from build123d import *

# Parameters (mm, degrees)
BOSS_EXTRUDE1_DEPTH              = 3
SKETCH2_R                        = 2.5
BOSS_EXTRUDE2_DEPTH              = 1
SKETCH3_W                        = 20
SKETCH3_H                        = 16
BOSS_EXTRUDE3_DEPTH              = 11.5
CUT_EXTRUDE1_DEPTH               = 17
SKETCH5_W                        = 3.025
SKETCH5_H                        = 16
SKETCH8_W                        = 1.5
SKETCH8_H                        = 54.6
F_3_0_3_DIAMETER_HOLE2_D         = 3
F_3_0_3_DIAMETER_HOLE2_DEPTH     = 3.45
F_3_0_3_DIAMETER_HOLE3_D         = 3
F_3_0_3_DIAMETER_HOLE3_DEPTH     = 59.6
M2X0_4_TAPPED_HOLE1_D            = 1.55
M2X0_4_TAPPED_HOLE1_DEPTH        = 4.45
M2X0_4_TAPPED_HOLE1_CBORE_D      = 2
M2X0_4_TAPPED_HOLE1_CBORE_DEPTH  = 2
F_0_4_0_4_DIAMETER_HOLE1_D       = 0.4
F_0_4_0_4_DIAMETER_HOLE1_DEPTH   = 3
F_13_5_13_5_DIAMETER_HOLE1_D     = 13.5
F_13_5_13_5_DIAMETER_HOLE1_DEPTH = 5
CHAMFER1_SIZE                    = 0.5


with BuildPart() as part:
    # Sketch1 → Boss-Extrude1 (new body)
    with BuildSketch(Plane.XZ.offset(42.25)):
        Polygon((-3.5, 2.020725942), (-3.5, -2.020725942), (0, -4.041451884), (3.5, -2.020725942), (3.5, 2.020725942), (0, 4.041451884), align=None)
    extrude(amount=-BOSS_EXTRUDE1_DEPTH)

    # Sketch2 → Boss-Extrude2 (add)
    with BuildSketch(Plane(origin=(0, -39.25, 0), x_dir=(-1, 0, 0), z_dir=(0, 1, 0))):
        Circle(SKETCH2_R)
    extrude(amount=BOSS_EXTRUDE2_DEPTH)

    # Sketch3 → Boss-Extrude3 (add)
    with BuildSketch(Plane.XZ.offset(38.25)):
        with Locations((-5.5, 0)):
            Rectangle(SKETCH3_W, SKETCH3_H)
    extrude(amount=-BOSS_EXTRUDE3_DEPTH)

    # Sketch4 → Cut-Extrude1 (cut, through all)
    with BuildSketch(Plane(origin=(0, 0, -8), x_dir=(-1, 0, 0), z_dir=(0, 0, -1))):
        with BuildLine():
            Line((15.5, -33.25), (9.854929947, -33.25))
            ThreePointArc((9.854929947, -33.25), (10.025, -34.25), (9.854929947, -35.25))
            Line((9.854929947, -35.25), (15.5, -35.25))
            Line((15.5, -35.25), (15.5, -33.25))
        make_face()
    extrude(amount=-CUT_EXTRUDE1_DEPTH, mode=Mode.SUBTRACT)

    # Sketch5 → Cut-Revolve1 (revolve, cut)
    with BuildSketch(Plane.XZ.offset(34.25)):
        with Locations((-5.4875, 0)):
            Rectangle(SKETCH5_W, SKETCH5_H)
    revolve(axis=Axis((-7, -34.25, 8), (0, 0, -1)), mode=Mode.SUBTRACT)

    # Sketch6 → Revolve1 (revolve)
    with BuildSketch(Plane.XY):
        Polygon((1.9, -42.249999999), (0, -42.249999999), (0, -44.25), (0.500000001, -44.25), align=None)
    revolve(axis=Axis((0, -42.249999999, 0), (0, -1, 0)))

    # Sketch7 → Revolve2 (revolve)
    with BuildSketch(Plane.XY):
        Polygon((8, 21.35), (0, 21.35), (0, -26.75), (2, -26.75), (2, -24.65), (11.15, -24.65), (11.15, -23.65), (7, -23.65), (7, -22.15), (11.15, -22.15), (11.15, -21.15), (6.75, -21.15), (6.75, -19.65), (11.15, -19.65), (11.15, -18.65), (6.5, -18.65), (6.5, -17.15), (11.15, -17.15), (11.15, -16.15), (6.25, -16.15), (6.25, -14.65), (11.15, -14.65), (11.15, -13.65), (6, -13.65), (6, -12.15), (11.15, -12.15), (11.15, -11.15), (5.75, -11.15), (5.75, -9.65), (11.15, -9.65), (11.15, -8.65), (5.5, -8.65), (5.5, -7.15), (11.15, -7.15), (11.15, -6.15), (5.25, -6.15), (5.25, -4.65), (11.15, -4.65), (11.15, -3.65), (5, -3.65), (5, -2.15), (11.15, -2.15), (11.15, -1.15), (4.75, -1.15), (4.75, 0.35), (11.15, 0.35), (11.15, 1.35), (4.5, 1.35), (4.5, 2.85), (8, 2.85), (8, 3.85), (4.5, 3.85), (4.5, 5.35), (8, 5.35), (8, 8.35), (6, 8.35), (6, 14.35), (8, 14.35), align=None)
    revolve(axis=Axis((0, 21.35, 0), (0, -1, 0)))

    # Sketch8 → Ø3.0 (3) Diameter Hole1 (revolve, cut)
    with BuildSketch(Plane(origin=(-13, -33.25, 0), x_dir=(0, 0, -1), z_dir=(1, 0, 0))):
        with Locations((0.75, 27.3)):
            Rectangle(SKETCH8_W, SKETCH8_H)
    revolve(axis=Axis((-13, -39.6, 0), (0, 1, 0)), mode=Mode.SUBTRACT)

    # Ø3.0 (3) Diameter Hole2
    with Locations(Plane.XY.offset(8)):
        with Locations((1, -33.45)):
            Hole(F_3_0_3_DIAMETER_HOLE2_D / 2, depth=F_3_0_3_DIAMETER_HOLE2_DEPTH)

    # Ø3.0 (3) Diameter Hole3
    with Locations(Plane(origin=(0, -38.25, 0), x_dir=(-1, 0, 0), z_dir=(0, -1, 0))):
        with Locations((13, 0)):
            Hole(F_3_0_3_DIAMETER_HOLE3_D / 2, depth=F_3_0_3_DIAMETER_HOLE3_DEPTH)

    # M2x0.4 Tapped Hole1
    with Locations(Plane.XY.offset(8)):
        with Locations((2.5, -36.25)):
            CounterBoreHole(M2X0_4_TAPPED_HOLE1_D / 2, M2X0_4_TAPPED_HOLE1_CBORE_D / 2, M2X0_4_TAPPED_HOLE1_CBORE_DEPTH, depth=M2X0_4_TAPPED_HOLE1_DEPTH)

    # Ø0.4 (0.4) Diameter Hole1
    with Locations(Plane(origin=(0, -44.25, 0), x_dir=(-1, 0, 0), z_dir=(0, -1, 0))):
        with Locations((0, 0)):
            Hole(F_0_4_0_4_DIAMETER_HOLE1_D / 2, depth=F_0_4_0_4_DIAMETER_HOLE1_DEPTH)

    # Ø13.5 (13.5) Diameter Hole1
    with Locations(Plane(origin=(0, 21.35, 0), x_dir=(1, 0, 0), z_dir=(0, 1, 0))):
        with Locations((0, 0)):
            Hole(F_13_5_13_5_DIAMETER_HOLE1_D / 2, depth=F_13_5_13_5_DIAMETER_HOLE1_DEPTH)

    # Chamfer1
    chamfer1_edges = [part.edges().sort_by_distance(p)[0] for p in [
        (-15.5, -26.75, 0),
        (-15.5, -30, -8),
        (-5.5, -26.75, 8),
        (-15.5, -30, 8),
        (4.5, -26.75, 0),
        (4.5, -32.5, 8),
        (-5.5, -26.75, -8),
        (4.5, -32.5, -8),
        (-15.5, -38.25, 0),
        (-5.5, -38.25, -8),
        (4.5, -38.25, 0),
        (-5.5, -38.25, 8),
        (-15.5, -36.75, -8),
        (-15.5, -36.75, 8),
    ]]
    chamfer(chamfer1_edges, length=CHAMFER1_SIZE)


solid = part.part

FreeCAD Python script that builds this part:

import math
import FreeCAD as App
import Part
import Sketcher
from FreeCAD import Vector
Q = App.Units.Quantity


def edges_at(feature, points):
    """Names of the edges that pass closest to the given points."""
    edges = feature.Shape.Edges
    near = lambda p: min(range(len(edges)), key=lambda i: edges[i].distToShape(Part.Vertex(*p))[0])
    return sorted({f"Edge{near(p) + 1}" for p in points})


def add_polygon(sketch, points):
    """Adds a closed chain of lines whose ends are joined by coincident constraints."""
    first, n = sketch.GeometryCount, len(points)
    for a, b in zip(points, points[1:] + points[:1]):
        sketch.addGeometry(Part.LineSegment(App.Vector(*a, 0), App.Vector(*b, 0)), False)
    for i in range(n):
        sketch.addConstraint(Sketcher.Constraint("Coincident", first + i, 2, first + (i + 1) % n, 1))

doc = App.newDocument("Part")
body = doc.addObject("PartDesign::Body", "Body")

sketch1 = body.newObject("Sketcher::SketchObject", "Sketch")
sketch1.AttachmentSupport = (doc.getObject("XZ_Plane"), [""])
sketch1.MapMode = "FlatFace"
sketch1.AttachmentOffset = App.Placement(Vector(0, 0, 42.25), App.Rotation())
add_polygon(sketch1, [(-3.5, 2.020726), (-3.5, -2.020726), (0, -4.041452), (3.5, -2.020726), (3.5, 2.020726), (0, 4.041452)])
sketch1.addConstraint([
    Sketcher.Constraint("Vertical", 0),
    Sketcher.Constraint("Vertical", 3),
    Sketcher.Constraint("Symmetric", 0, 2, 3, 2, -1, 1),
    Sketcher.Constraint("Symmetric", 1, 2, 4, 2, -1, 1),
    Sketcher.Constraint("PointOnObject", 1, 2, -2),
    Sketcher.Constraint("Parallel", 2, 5),
    Sketcher.Constraint("Horizontal", 0, 2, 2, 2),
    Sketcher.Constraint("Angle", 1, Q("-30 deg")),
    Sketcher.Constraint("DistanceX", 0, 2, 2, 2, Q("7 mm")),
    Sketcher.Constraint("DistanceY", 0, 2, 0, 1, Q("4.041452 mm")),
])
pad1 = body.newObject("PartDesign::Pad", "Pad")
pad1.Profile = sketch1
pad1.Length = 3
pad1.Reversed = True

sketch2 = body.newObject("Sketcher::SketchObject", "Sketch001")
sketch2.AttachmentSupport = (doc.getObject("XZ_Plane"), [""])
sketch2.MapMode = "FlatFace"
sketch2.AttachmentOffset = App.Placement(Vector(0, 0, 39.25), App.Rotation())
sketch2.addGeometry(Part.Circle(Vector(0, 0, 0), Vector(0, 0, 1), 2.5), False)
sketch2.addConstraint([
    Sketcher.Constraint("Coincident", 0, 3, -1, 1),
    Sketcher.Constraint("Diameter", 0, Q("5 mm")),
])
pad2 = body.newObject("PartDesign::Pad", "Pad001")
pad2.Profile = sketch2
pad2.Length = 1
pad2.Reversed = True

sketch3 = body.newObject("Sketcher::SketchObject", "Sketch002")
sketch3.AttachmentSupport = (doc.getObject("XZ_Plane"), [""])
sketch3.MapMode = "FlatFace"
sketch3.AttachmentOffset = App.Placement(Vector(0, 0, 38.25), App.Rotation())
add_polygon(sketch3, [(-15.5, 8), (-15.5, -8), (4.5, -8), (4.5, 8)])
sketch3.addConstraint([
    Sketcher.Constraint("Vertical", 0),
    Sketcher.Constraint("Horizontal", 1),
    Sketcher.Constraint("Vertical", 2),
    Sketcher.Constraint("Horizontal", 3),
    Sketcher.Constraint("DistanceX", 1, 1, 1, 2, Q("20 mm")),
    Sketcher.Constraint("DistanceY", 0, 2, 0, 1, Q("16 mm")),
    Sketcher.Constraint("DistanceY", 0, 2, -1, 1, Q("8 mm")),
    Sketcher.Constraint("DistanceX", 0, 2, -1, 1, Q("15.5 mm")),
])
pad3 = body.newObject("PartDesign::Pad", "Pad002")
pad3.Profile = sketch3
pad3.Length = 11.5
pad3.Reversed = True

sketch4 = body.newObject("Sketcher::SketchObject", "Sketch003")
sketch4.AttachmentSupport = (doc.getObject("XY_Plane"), [""])
sketch4.MapMode = "FlatFace"
sketch4.AttachmentOffset = App.Placement(Vector(0, 0, -8), App.Rotation())
sketch4.addGeometry([
    Part.LineSegment(Vector(-15.5, -33.25, 0), Vector(-9.85493, -33.25, 0)),
    Part.ArcOfCircle(Part.Circle(Vector(-7, -34.25, 0), Vector(0, 0, 1), 3.025), math.radians(160.696107), math.radians(199.303893)),
    Part.LineSegment(Vector(-9.85493, -35.25, 0), Vector(-15.5, -35.25, 0)),
    Part.LineSegment(Vector(-15.5, -35.25, 0), Vector(-15.5, -33.25, 0)),
], False)
sketch4.addConstraint([
    Sketcher.Constraint("Coincident", 0, 2, 1, 1),
    Sketcher.Constraint("Coincident", 1, 2, 2, 1),
    Sketcher.Constraint("Coincident", 2, 2, 3, 1),
    Sketcher.Constraint("Coincident", 3, 2, 0, 1),
    Sketcher.Constraint("Horizontal", 0),
    Sketcher.Constraint("Horizontal", 2),
    Sketcher.Constraint("Vertical", 3),
    Sketcher.Constraint("Vertical", 0, 2, 1, 2),
    Sketcher.Constraint("DistanceY", 3, 1, 3, 2, Q("2 mm")),
    Sketcher.Constraint("DistanceX", 1, 3, -1, 1, Q("7 mm")),
    Sketcher.Constraint("Radius", 1, Q("3.025 mm")),
    Sketcher.Constraint("DistanceX", 2, 2, -1, 1, Q("15.5 mm")),
    Sketcher.Constraint("DistanceY", 1, 3, -1, 1, Q("34.25 mm")),
])
pocket1 = body.newObject("PartDesign::Pocket", "Pocket")
pocket1.Profile = sketch4
pocket1.Type = "ThroughAll"
pocket1.Reversed = True

sketch5 = body.newObject("Sketcher::SketchObject", "Sketch004")
sketch5.AttachmentSupport = (doc.getObject("XZ_Plane"), [""])
sketch5.MapMode = "FlatFace"
sketch5.AttachmentOffset = App.Placement(Vector(0, 0, 34.25), App.Rotation())
add_polygon(sketch5, [(-7, 8), (-7, -8), (-3.975, -8), (-3.975, 8)])
sketch5.addGeometry(Part.LineSegment(Vector(-7, 8, 0), Vector(-7, -8, 0)), True)
sketch5.addConstraint([
    Sketcher.Constraint("Vertical", 0),
    Sketcher.Constraint("Horizontal", 1),
    Sketcher.Constraint("Vertical", 2),
    Sketcher.Constraint("Horizontal", 3),
    Sketcher.Constraint("Vertical", 4),
    Sketcher.Constraint("Coincident", 4, 1, 3, 2),
    Sketcher.Constraint("Horizontal", 1, 2, 4, 2),
    Sketcher.Constraint("DistanceY", 0, 2, 0, 1, Q("16 mm")),
    Sketcher.Constraint("DistanceX", 0, 2, -1, 1, Q("7 mm")),
    Sketcher.Constraint("DistanceY", 0, 2, -1, 1, Q("8 mm")),
    Sketcher.Constraint("DistanceX", 1, 1, 1, 2, Q("3.025 mm")),
])
groove = body.newObject("PartDesign::Groove", "Groove")
groove.Profile = sketch5
groove.ReferenceAxis = (sketch5, ["Axis0"])
groove.Angle = 360

sketch6 = body.newObject("Sketcher::SketchObject", "Sketch005")
sketch6.AttachmentSupport = (doc.getObject("XY_Plane"), [""])
sketch6.MapMode = "FlatFace"
add_polygon(sketch6, [(1.9, -42.25), (0, -42.25), (0, -44.25), (0.5, -44.25)])
sketch6.addConstraint([
    Sketcher.Constraint("Horizontal", 0),
    Sketcher.Constraint("Vertical", 1),
    Sketcher.Constraint("Horizontal", 2),
    Sketcher.Constraint("PointOnObject", 0, 2, -2),
    Sketcher.Constraint("DistanceY", 1, 2, 1, 1, Q("2 mm")),
    Sketcher.Constraint("DistanceX", 0, 2, 0, 1, Q("1.9 mm")),
    Sketcher.Constraint("DistanceX", 2, 1, 2, 2, Q("0.5 mm")),
    Sketcher.Constraint("DistanceY", 0, 2, -1, 1, Q("42.25 mm")),
])
revolution = body.newObject("PartDesign::Revolution", "Revolution")
revolution.Profile = sketch6
revolution.ReferenceAxis = (sketch6, ["V_Axis"])
revolution.Angle = 360

sketch7 = body.newObject("Sketcher::SketchObject", "Sketch006")
sketch7.AttachmentSupport = (doc.getObject("XY_Plane"), [""])
sketch7.MapMode = "FlatFace"
add_polygon(sketch7, [(8, 21.35), (0, 21.35), (0, -26.75), (2, -26.75), (2, -24.65), (11.15, -24.65), (11.15, -23.65), (7, -23.65), (7, -22.15), (11.15, -22.15), (11.15, -21.15), (6.75, -21.15), (6.75, -19.65), (11.15, -19.65), (11.15, -18.65), (6.5, -18.65), (6.5, -17.15), (11.15, -17.15), (11.15, -16.15), (6.25, -16.15), (6.25, -14.65), (11.15, -14.65), (11.15, -13.65), (6, -13.65), (6, -12.15), (11.15, -12.15), (11.15, -11.15), (5.75, -11.15), (5.75, -9.65), (11.15, -9.65), (11.15, -8.65), (5.5, -8.65), (5.5, -7.15), (11.15, -7.15), (11.15, -6.15), (5.25, -6.15), (5.25, -4.65), (11.15, -4.65), (11.15, -3.65), (5, -3.65), (5, -2.15), (11.15, -2.15), (11.15, -1.15), (4.75, -1.15), (4.75, 0.35), (11.15, 0.35), (11.15, 1.35), (4.5, 1.35), (4.5, 2.85), (8, 2.85), (8, 3.85), (4.5, 3.85), (4.5, 5.35), (8, 5.35), (8, 8.35), (6, 8.35), (6, 14.35), (8, 14.35)])
sketch7.addConstraint([
    Sketcher.Constraint("Horizontal", 0),
    Sketcher.Constraint("Vertical", 1),
    Sketcher.Constraint("Horizontal", 2),
    Sketcher.Constraint("Vertical", 3),
    Sketcher.Constraint("Horizontal", 4),
    Sketcher.Constraint("Vertical", 5),
    Sketcher.Constraint("Horizontal", 6),
    Sketcher.Constraint("Vertical", 7),
    Sketcher.Constraint("Horizontal", 8),
    Sketcher.Constraint("Vertical", 9),
    Sketcher.Constraint("Horizontal", 10),
    Sketcher.Constraint("Vertical", 11),
    Sketcher.Constraint("Horizontal", 12),
    Sketcher.Constraint("Vertical", 13),
    Sketcher.Constraint("Horizontal", 14),
    Sketcher.Constraint("Vertical", 15),
    Sketcher.Constraint("Horizontal", 16),
    Sketcher.Constraint("Vertical", 17),
    Sketcher.Constraint("Horizontal", 18),
    Sketcher.Constraint("Vertical", 19),
    Sketcher.Constraint("Horizontal", 20),
    Sketcher.Constraint("Vertical", 21),
    Sketcher.Constraint("Horizontal", 22),
    Sketcher.Constraint("Vertical", 23),
    Sketcher.Constraint("Horizontal", 24),
    Sketcher.Constraint("Vertical", 25),
    Sketcher.Constraint("Horizontal", 26),
    Sketcher.Constraint("Vertical", 27),
    Sketcher.Constraint("Horizontal", 28),
    Sketcher.Constraint("Vertical", 29),
    Sketcher.Constraint("Horizontal", 30),
    Sketcher.Constraint("Vertical", 31),
    Sketcher.Constraint("Horizontal", 32),
    Sketcher.Constraint("Vertical", 33),
    Sketcher.Constraint("Horizontal", 34),
    Sketcher.Constraint("Vertical", 35),
    Sketcher.Constraint("Horizontal", 36),
    Sketcher.Constraint("Vertical", 37),
    Sketcher.Constraint("Horizontal", 38),
    Sketcher.Constraint("Vertical", 39),
    Sketcher.Constraint("Horizontal", 40),
    Sketcher.Constraint("Vertical", 41),
    Sketcher.Constraint("Horizontal", 42),
    Sketcher.Constraint("Vertical", 43),
    Sketcher.Constraint("Horizontal", 44),
    Sketcher.Constraint("Vertical", 45),
    Sketcher.Constraint("Horizontal", 46),
    Sketcher.Constraint("Vertical", 47),
    Sketcher.Constraint("Horizontal", 48),
    Sketcher.Constraint("Vertical", 49),
    Sketcher.Constraint("Horizontal", 50),
    Sketcher.Constraint("Vertical", 51),
    Sketcher.Constraint("Horizontal", 52),
    Sketcher.Constraint("Vertical", 53),
    Sketcher.Constraint("Horizontal", 54),
    Sketcher.Constraint("Vertical", 55),
    Sketcher.Constraint("Horizontal", 56),
    Sketcher.Constraint("Vertical", 57),
    Sketcher.Constraint("PointOnObject", 0, 2, -2),
    Sketcher.Constraint("Vertical", 5, 2, 8, 2),
    Sketcher.Constraint("Vertical", 9, 2, 12, 2),
    Sketcher.Constraint("Vertical", 13, 2, 16, 2),
    Sketcher.Constraint("Vertical", 17, 2, 20, 2),
    Sketcher.Constraint("Vertical", 21, 2, 24, 2),
    Sketcher.Constraint("Vertical", 25, 2, 28, 2),
    Sketcher.Constraint("Vertical", 29, 2, 32, 2),
    Sketcher.Constraint("Vertical", 33, 2, 36, 2),
    Sketcher.Constraint("Vertical", 37, 2, 40, 2),
    Sketcher.Constraint("Vertical", 41, 2, 44, 2),
    Sketcher.Constraint("Vertical", 47, 2, 50, 2),
    Sketcher.Constraint("Vertical", 49, 2, 52, 2),
    Sketcher.Constraint("Vertical", 23, 2, 54, 2),
    Sketcher.Constraint("Vertical", 53, 2, 56, 2),
    Sketcher.Constraint("Equal", 2, 54),
    Sketcher.Constraint("Equal", 5, 9),
    Sketcher.Constraint("Equal", 7, 11),
    Sketcher.Constraint("Equal", 9, 13),
    Sketcher.Constraint("Equal", 11, 15),
    Sketcher.Constraint("Equal", 13, 17),
    Sketcher.Constraint("Equal", 15, 19),
    Sketcher.Constraint("Equal", 17, 21),
    Sketcher.Constraint("Equal", 19, 23),
    Sketcher.Constraint("Equal", 21, 25),
    Sketcher.Constraint("Equal", 23, 27),
    Sketcher.Constraint("Equal", 25, 29),
    Sketcher.Constraint("Equal", 27, 31),
    Sketcher.Constraint("Equal", 29, 33),
    Sketcher.Constraint("Equal", 31, 35),
    Sketcher.Constraint("Equal", 33, 37),
    Sketcher.Constraint("Equal", 35, 39),
    Sketcher.Constraint("Equal", 37, 41),
    Sketcher.Constraint("Equal", 39, 43),
    Sketcher.Constraint("Equal", 41, 45),
    Sketcher.Constraint("Equal", 43, 47),
    Sketcher.Constraint("Equal", 45, 49),
    Sketcher.Constraint("Equal", 47, 51),
    Sketcher.Constraint("DistanceX", 0, 2, 0, 1, Q("8 mm")),
    Sketcher.Constraint("DistanceX", 2, 1, 2, 2, Q("2 mm")),
    Sketcher.Constraint("DistanceY", 5, 1, 5, 2, Q("1 mm")),
    Sketcher.Constraint("DistanceY", 53, 1, 53, 2, Q("3 mm")),
    Sketcher.Constraint("DistanceY", 55, 1, 55, 2, Q("6 mm")),
    Sketcher.Constraint("DistanceY", 57, 1, 57, 2, Q("7 mm")),
    Sketcher.Constraint("DistanceX", 10, 2, 10, 1, Q("4.4 mm")),
    Sketcher.Constraint("DistanceX", 18, 2, 18, 1, Q("4.9 mm")),
    Sketcher.Constraint("DistanceX", 26, 2, 26, 1, Q("5.4 mm")),
    Sketcher.Constraint("DistanceX", 34, 2, 34, 1, Q("5.9 mm")),
    Sketcher.Constraint("DistanceX", 42, 2, 42, 1, Q("6.4 mm")),
    Sketcher.Constraint("DistanceX", 48, 1, 48, 2, Q("3.5 mm")),
    Sketcher.Constraint("DistanceY", 1, 2, 1, 1, Q("48.1 mm")),
    Sketcher.Constraint("DistanceY", 3, 1, 3, 2, Q("2.1 mm")),
    Sketcher.Constraint("DistanceX", -1, 1, 6, 2, Q("7 mm")),
    Sketcher.Constraint("DistanceX", -1, 1, 38, 2, Q("5 mm")),
    Sketcher.Constraint("DistanceX", 4, 1, 4, 2, Q("9.15 mm")),
    Sketcher.Constraint("DistanceX", 14, 2, 14, 1, Q("4.65 mm")),
    Sketcher.Constraint("DistanceX", 30, 2, 30, 1, Q("5.65 mm")),
    Sketcher.Constraint("DistanceY", -1, 1, 0, 2, Q("21.35 mm")),
])
revolution2 = body.newObject("PartDesign::Revolution", "Revolution001")
revolution2.Profile = sketch7
revolution2.ReferenceAxis = (sketch7, ["V_Axis"])
revolution2.Angle = 360

sketch8 = body.newObject("Sketcher::SketchObject", "Sketch007")
sketch8.AttachmentSupport = (doc.getObject("YZ_Plane"), [""])
sketch8.MapMode = "FlatFace"
sketch8.AttachmentOffset = App.Placement(Vector(0, 0, -13), App.Rotation())
add_polygon(sketch8, [(21.35, 0), (-33.25, 0), (-33.25, -1.5), (21.35, -1.5)])
sketch8.addConstraint([
    Sketcher.Constraint("Horizontal", 0),
    Sketcher.Constraint("Vertical", 1),
    Sketcher.Constraint("Horizontal", 2),
    Sketcher.Constraint("Vertical", 3),
    Sketcher.Constraint("PointOnObject", 0, 2, -1),
    Sketcher.Constraint("DistanceX", 0, 2, 0, 1, Q("54.6 mm")),
    Sketcher.Constraint("DistanceY", 1, 2, 1, 1, Q("1.5 mm")),
    Sketcher.Constraint("DistanceX", 0, 2, -1, 1, Q("33.25 mm")),
])
groove2 = body.newObject("PartDesign::Groove", "Groove001")
groove2.Profile = sketch8
groove2.ReferenceAxis = (sketch8, ["H_Axis"])
groove2.Angle = 360

sketch9 = body.newObject("Sketcher::SketchObject", "Sketch008")
sketch9.AttachmentSupport = (doc.getObject("XY_Plane"), [""])
sketch9.MapMode = "FlatFace"
sketch9.AttachmentOffset = App.Placement(Vector(0, 0, 8), App.Rotation())
sketch9.addGeometry(Part.Circle(Vector(1, -33.45, 0), Vector(0, 0, 1), 1.5), False)
sketch9.addConstraint([
    Sketcher.Constraint("Diameter", 0, Q("3 mm")),
    Sketcher.Constraint("DistanceX", -1, 1, 0, 3, Q("1 mm")),
    Sketcher.Constraint("DistanceY", 0, 3, -1, 1, Q("33.45 mm")),
])
doc.recompute()
hole = body.newObject("PartDesign::Hole", "Hole")
hole.Profile = sketch9
hole.ThreadType = "None"
hole.Diameter = 3
hole.DepthType = "Dimension"
hole.Depth = 3.45
hole.DrillPoint = "Flat"

sketch10 = body.newObject("Sketcher::SketchObject", "Sketch009")
sketch10.AttachmentSupport = (doc.getObject("XZ_Plane"), [""])
sketch10.MapMode = "FlatFace"
sketch10.AttachmentOffset = App.Placement(Vector(0, 0, 38.25), App.Rotation())
sketch10.addGeometry(Part.Circle(Vector(-13, 0, 0), Vector(0, 0, 1), 1.5), False)
sketch10.addConstraint([
    Sketcher.Constraint("PointOnObject", 0, 3, -1),
    Sketcher.Constraint("Diameter", 0, Q("3 mm")),
    Sketcher.Constraint("DistanceX", 0, 3, -1, 1, Q("13 mm")),
])
doc.recompute()
hole2 = body.newObject("PartDesign::Hole", "Hole001")
hole2.Profile = sketch10
hole2.ThreadType = "None"
hole2.Diameter = 3
hole2.DepthType = "Dimension"
hole2.Depth = 59.6
hole2.DrillPoint = "Flat"

sketch11 = body.newObject("Sketcher::SketchObject", "Sketch010")
sketch11.AttachmentSupport = (doc.getObject("XY_Plane"), [""])
sketch11.MapMode = "FlatFace"
sketch11.AttachmentOffset = App.Placement(Vector(0, 0, 8), App.Rotation())
sketch11.addGeometry(Part.Circle(Vector(2.5, -36.25, 0), Vector(0, 0, 1), 0.775), False)
sketch11.addConstraint([
    Sketcher.Constraint("Diameter", 0, Q("1.55 mm")),
    Sketcher.Constraint("DistanceX", -1, 1, 0, 3, Q("2.5 mm")),
    Sketcher.Constraint("DistanceY", 0, 3, -1, 1, Q("36.25 mm")),
])
doc.recompute()
hole3 = body.newObject("PartDesign::Hole", "Hole002")
hole3.Profile = sketch11
hole3.ThreadType = "None"
hole3.Diameter = 1.55
hole3.DepthType = "Dimension"
hole3.Depth = 4.45
hole3.DrillPoint = "Flat"
hole3.HoleCutType = "Counterbore"
hole3.HoleCutDiameter = 2
hole3.HoleCutDepth = 2

sketch12 = body.newObject("Sketcher::SketchObject", "Sketch011")
sketch12.AttachmentSupport = (doc.getObject("XZ_Plane"), [""])
sketch12.MapMode = "FlatFace"
sketch12.AttachmentOffset = App.Placement(Vector(0, 0, 44.25), App.Rotation())
sketch12.addGeometry(Part.Circle(Vector(0, 0, 0), Vector(0, 0, 1), 0.2), False)
sketch12.addConstraint([
    Sketcher.Constraint("Coincident", 0, 3, -1, 1),
    Sketcher.Constraint("Diameter", 0, Q("0.4 mm")),
])
doc.recompute()
hole4 = body.newObject("PartDesign::Hole", "Hole003")
hole4.Profile = sketch12
hole4.ThreadType = "None"
hole4.Diameter = 0.4
hole4.DepthType = "Dimension"
hole4.Depth = 3
hole4.DrillPoint = "Flat"

sketch13 = body.newObject("Sketcher::SketchObject", "Sketch012")
sketch13.AttachmentSupport = (doc.getObject("XZ_Plane"), [""])
sketch13.MapMode = "FlatFace"
sketch13.AttachmentOffset = App.Placement(Vector(0, 0, -21.35), App.Rotation())
sketch13.addGeometry(Part.Circle(Vector(0, 0, 0), Vector(0, 0, 1), 6.75), False)
sketch13.addConstraint([
    Sketcher.Constraint("Coincident", 0, 3, -1, 1),
    Sketcher.Constraint("Diameter", 0, Q("13.5 mm")),
])
doc.recompute()
hole5 = body.newObject("PartDesign::Hole", "Hole004")
hole5.Profile = sketch13
hole5.ThreadType = "None"
hole5.Diameter = 13.5
hole5.DepthType = "Dimension"
hole5.Depth = 5
hole5.DrillPoint = "Flat"
hole5.Reversed = True
doc.recompute()

chamfer = body.newObject("PartDesign::Chamfer", "Chamfer")
chamfer.Base = (hole5, edges_at(hole5, [
    (-15.5, -26.75, 0),
    (-15.5, -30, -8),
    (-5.5, -26.75, 8),
    (-15.5, -30, 8),
    (4.5, -26.75, 0),
    (4.5, -32.5, 8),
    (-5.5, -26.75, -8),
    (4.5, -32.5, -8),
    (-15.5, -38.25, 0),
    (-5.5, -38.25, -8),
    (4.5, -38.25, 0),
    (-5.5, -38.25, 8),
    (-15.5, -36.75, -8),
    (-15.5, -36.75, 8),
]))
chamfer.Size = 0.5

doc.recompute()
